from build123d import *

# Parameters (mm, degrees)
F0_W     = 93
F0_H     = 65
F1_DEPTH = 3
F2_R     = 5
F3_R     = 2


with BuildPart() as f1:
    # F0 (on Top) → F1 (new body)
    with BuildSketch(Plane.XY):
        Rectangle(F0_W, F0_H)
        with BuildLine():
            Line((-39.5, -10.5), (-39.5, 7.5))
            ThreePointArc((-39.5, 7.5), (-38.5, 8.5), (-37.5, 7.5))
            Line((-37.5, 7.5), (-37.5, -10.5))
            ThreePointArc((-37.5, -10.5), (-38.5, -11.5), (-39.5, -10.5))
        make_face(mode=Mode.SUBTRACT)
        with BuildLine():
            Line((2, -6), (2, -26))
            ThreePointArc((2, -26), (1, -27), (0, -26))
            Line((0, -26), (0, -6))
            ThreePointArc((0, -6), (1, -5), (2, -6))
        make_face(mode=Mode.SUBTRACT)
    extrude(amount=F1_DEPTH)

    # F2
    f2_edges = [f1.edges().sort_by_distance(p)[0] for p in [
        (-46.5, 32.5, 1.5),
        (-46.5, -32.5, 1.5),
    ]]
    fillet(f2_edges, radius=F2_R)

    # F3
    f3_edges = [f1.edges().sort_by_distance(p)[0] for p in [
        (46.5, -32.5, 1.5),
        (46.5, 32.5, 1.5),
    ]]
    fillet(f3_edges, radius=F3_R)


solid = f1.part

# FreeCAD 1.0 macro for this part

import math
import FreeCAD as App
import Part
import Sketcher

V = App.Vector
Q = App.Units.Quantity


def edges_at(feature, points):
    """Names of the edges that pass closest to the given points."""
    edges = feature.Shape.Edges
    near = lambda p: min(range(len(edges)), key=lambda i: edges[i].distToShape(Part.Vertex(*p))[0])
    return sorted({f"Edge{near(p) + 1}" for p in points})

doc = App.newDocument("Part")
body = doc.addObject("PartDesign::Body", "Body")

sketch1 = body.newObject("Sketcher::SketchObject", "Sketch")
sketch1.AttachmentSupport = (doc.getObject("XY_Plane"), [""])
sketch1.MapMode = "FlatFace"
sketch1.addGeometry([
    Part.LineSegment(V(-46.5, 32.5, 0), V(-46.5, -32.5, 0)),
    Part.LineSegment(V(-46.5, -32.5, 0), V(46.5, -32.5, 0)),
    Part.LineSegment(V(46.5, -32.5, 0), V(46.5, 32.5, 0)),
    Part.LineSegment(V(46.5, 32.5, 0), V(-46.5, 32.5, 0)),
    Part.ArcOfCircle(Part.Circle(V(1, -6, 0), V(0, 0, 1), 1), math.radians(0), math.radians(180)),
    Part.LineSegment(V(2, -6, 0), V(2, -26, 0)),
    Part.ArcOfCircle(Part.Circle(V(1, -26, 0), V(0, 0, 1), 1), math.radians(180), math.radians(360)),
    Part.LineSegment(V(0, -26, 0), V(0, -6, 0)),
    Part.ArcOfCircle(Part.Circle(V(-38.5, -10.5, 0), V(0, 0, 1), 1), math.radians(180), math.radians(360)),
    Part.LineSegment(V(-39.5, -10.5, 0), V(-39.5, 7.5, 0)),
    Part.ArcOfCircle(Part.Circle(V(-38.5, 7.5, 0), V(0, 0, 1), 1), math.radians(0), math.radians(180)),
    Part.LineSegment(V(-37.5, 7.5, 0), V(-37.5, -10.5, 0)),
], False)
sketch1.addConstraint([
    Sketcher.Constraint("Coincident", 0, 2, 1, 1),
    Sketcher.Constraint("Coincident", 1, 2, 2, 1),
    Sketcher.Constraint("Coincident", 2, 2, 3, 1),
    Sketcher.Constraint("Coincident", 3, 2, 0, 1),
    Sketcher.Constraint("Tangent", 4, 1, 5, 1),
    Sketcher.Constraint("Tangent", 5, 2, 6, 2),
    Sketcher.Constraint("Tangent", 6, 1, 7, 1),
    Sketcher.Constraint("Tangent", 7, 2, 4, 2),
    Sketcher.Constraint("Tangent", 8, 1, 9, 1),
    Sketcher.Constraint("Tangent", 9, 2, 10, 2),
    Sketcher.Constraint("Tangent", 10, 1, 11, 1),
    Sketcher.Constraint("Tangent", 11, 2, 8, 2),
    Sketcher.Constraint("Vertical", 0),
    Sketcher.Constraint("Horizontal", 1),
    Sketcher.Constraint("Vertical", 2),
    Sketcher.Constraint("Horizontal", 3),
    Sketcher.Constraint("Vertical", 5),
    Sketcher.Constraint("Vertical", 7),
    Sketcher.Constraint("Vertical", 9),
    Sketcher.Constraint("Vertical", 11),
    Sketcher.Constraint("Equal", 6, 8),
    Sketcher.Constraint("Symmetric", 0, 2, 2, 2, -1, 1),
    Sketcher.Constraint("PointOnObject", 6, 1, -2),
    Sketcher.Constraint("Radius", 4, Q("1 mm")),
    Sketcher.Constraint("DistanceX", 1, 1, 1, 2, Q("93 mm")),
    Sketcher.Constraint("DistanceY", 0, 2, 0, 1, Q("65 mm")),
    Sketcher.Constraint("DistanceY", 5, 2, 5, 1, Q("20 mm")),
    Sketcher.Constraint("DistanceY", 9, 1, 9, 2, Q("18 mm")),
    Sketcher.Constraint("DistanceY", 4, 3, -1, 1, Q("6 mm")),
    Sketcher.Constraint("DistanceX", 0, 2, 8, 3, Q("8 mm")),
    Sketcher.Constraint("DistanceY", 0, 2, 8, 3, Q("22 mm")),
])
pad1 = body.newObject("PartDesign::Pad", "Pad")
pad1.Profile = sketch1
pad1.Length = 3
doc.recompute()

fillet = body.newObject("PartDesign::Fillet", "Fillet")
fillet.Base = (pad1, edges_at(pad1, [(-46.5, 32.5, 1.5), (-46.5, -32.5, 1.5)]))
fillet.Radius = 5
doc.recompute()

fillet2 = body.newObject("PartDesign::Fillet", "Fillet001")
fillet2.Base = (fillet, edges_at(fillet, [(46.5, -32.5, 1.5), (46.5, 32.5, 1.5)]))
fillet2.Radius = 2

doc.recompute()
